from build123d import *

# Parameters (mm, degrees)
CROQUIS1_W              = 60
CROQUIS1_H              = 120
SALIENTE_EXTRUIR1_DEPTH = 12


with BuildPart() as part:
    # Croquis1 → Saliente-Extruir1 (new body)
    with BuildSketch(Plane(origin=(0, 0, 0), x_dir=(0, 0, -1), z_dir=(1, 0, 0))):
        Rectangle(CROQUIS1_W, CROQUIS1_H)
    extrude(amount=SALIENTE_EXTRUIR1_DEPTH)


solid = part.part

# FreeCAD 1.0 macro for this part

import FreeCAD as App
import Part
import Sketcher


def add_polygon(sketch, points):
    """Adds a closed chain of lines whose ends are joined by coincident constraints."""
    first, n = sketch.GeometryCount, len(points)
    for a, b in zip(points, points[1:] + points[:1]):
        sketch.addGeometry(Part.LineSegment(App.Vector(*a, 0), App.Vector(*b, 0)), False)
    for i in range(n):
        sketch.addConstraint(Sketcher.Constraint("Coincident", first + i, 2, first + (i + 1) % n, 1))

doc = App.newDocument("Part")
body = doc.addObject("PartDesign::Body", "Body")

# Sketch on YZ plane
sketch1 = doc.addObject("Sketcher::SketchObject", "Sketch")
body.addObject(sketch1)
sketch1.AttachmentSupport = (doc.YZ_Plane, [""])
sketch1.MapMode = "FlatFace"
add_polygon(sketch1, [(60, 30), (-60, 30), (-60, -30), (60, -30)])  # lines 0-3
sketch1.addConstraint([
    Sketcher.Constraint("Horizontal", 0),
    Sketcher.Constraint("Vertical", 1),
    Sketcher.Constraint("Horizontal", 2),
    Sketcher.Constraint("Vertical", 3),
    Sketcher.Constraint("Symmetric", 0, 2, 2, 2, -1, 1),
    Sketcher.Constraint("DistanceX", 0, 2, 0, 1, 120.0),
    Sketcher.Constraint("DistanceY", 1, 2, 1, 1, 60.0),
])
pad1 = doc.addObject("PartDesign::Pad", "Pad")
body.addObject(pad1)
pad1.Profile = sketch1
pad1.Length = 12

doc.recompute()
